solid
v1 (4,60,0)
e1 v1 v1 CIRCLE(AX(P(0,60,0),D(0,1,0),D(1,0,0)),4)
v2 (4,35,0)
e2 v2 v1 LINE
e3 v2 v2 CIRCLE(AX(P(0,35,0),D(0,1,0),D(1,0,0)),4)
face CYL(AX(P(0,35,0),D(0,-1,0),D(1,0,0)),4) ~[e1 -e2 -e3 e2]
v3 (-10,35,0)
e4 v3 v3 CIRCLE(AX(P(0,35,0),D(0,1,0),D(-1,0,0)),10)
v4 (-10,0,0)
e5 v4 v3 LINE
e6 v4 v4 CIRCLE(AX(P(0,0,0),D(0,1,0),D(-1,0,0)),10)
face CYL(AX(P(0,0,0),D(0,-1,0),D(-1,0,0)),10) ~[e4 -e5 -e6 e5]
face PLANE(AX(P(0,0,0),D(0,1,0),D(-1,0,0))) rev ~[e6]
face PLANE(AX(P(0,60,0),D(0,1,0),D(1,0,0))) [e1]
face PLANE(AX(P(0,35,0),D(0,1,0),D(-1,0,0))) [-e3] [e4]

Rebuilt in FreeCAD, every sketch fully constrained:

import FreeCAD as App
import Part
import Sketcher

V = App.Vector

doc = App.newDocument("Part")
body = doc.addObject("PartDesign::Body", "Body")

# Sketch on XZ plane
sketch1 = body.newObject("Sketcher::SketchObject", "Sketch")
sketch1.AttachmentSupport = (doc.getObject("XZ_Plane"), [""])
sketch1.MapMode = "FlatFace"
sketch1.addGeometry(Part.Circle(V(0, 0, 0), V(0, 0, 1), 10), False)
sketch1.addConstraint([
    Sketcher.Constraint("Coincident", 0, 3, -1, 1),
    Sketcher.Constraint("Diameter", 0, 20.0),
])
pad1 = body.newObject("PartDesign::Pad", "Pad")
pad1.Profile = sketch1
pad1.Length = 35
pad1.Reversed = True

# Sketch on XZ plane
sketch2 = body.newObject("Sketcher::SketchObject", "Sketch001")
sketch2.AttachmentSupport = (doc.getObject("XZ_Plane"), [""])
sketch2.MapMode = "FlatFace"
sketch2.AttachmentOffset = App.Placement(V(0, 0, -35), App.Rotation())
sketch2.addGeometry(Part.Circle(V(0, 0, 0), V(0, 0, 1), 4), False)
sketch2.addConstraint([
    Sketcher.Constraint("Coincident", 0, 3, -1, 1),
    Sketcher.Constraint("Diameter", 0, 8.0),
])
pad2 = body.newObject("PartDesign::Pad", "Pad001")
pad2.Profile = sketch2
pad2.Length = 25
pad2.Reversed = True

doc.recompute()
